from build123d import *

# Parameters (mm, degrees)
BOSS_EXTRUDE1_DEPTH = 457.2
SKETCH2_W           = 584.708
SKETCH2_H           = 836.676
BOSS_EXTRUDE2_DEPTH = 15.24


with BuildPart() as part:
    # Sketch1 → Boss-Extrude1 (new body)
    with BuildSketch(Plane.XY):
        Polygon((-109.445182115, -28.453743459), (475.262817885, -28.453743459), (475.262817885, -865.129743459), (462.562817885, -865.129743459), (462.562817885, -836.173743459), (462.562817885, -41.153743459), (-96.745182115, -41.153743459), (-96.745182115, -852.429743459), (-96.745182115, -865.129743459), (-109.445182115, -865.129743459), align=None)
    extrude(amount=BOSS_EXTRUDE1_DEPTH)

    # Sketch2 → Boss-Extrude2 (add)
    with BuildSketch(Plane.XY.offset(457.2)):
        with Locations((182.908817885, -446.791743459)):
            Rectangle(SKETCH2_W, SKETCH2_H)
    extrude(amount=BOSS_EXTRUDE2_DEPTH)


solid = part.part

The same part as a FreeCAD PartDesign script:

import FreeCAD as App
import Part
import Sketcher
Q = App.Units.Quantity

doc = App.newDocument("Part")
body = doc.addObject("PartDesign::Body", "Body")

# Sketch on XY plane
sketch1 = doc.addObject("Sketcher::SketchObject", "Sketch")
body.addObject(sketch1)
sketch1.AttachmentSupport = (doc.XY_Plane, [""])
sketch1.MapMode = "FlatFace"
sketch1.addGeometry([
    Part.LineSegment(App.Vector(475, -28, 0), App.Vector(-109, -28, 0)),  # 0
    Part.LineSegment(App.Vector(-109, -28, 0), App.Vector(-109, -865, 0)),  # 1
    Part.LineSegment(App.Vector(-109, -865, 0), App.Vector(-97, -865, 0)),  # 2
    Part.LineSegment(App.Vector(-97, -865, 0), App.Vector(-97, -41, 0)),  # 3
    Part.LineSegment(App.Vector(-97, -41, 0), App.Vector(463, -41, 0)),  # 4
    Part.LineSegment(App.Vector(463, -41, 0), App.Vector(463, -865, 0)),  # 5
    Part.LineSegment(App.Vector(463, -865, 0), App.Vector(475, -865, 0)),  # 6
    Part.LineSegment(App.Vector(475, -865, 0), App.Vector(475, -28, 0)),  # 7
], False)
sketch1.addConstraint([
    Sketcher.Constraint("Coincident", 0, 2, 1, 1),
    Sketcher.Constraint("Coincident", 1, 2, 2, 1),
    Sketcher.Constraint("Coincident", 2, 2, 3, 1),
    Sketcher.Constraint("Coincident", 3, 2, 4, 1),
    Sketcher.Constraint("Coincident", 4, 2, 5, 1),
    Sketcher.Constraint("Coincident", 5, 2, 6, 1),
    Sketcher.Constraint("Coincident", 6, 2, 7, 1),
    Sketcher.Constraint("Coincident", 7, 2, 0, 1),
    Sketcher.Constraint("Horizontal", 0),
    Sketcher.Constraint("Vertical", 1),
    Sketcher.Constraint("Horizontal", 2),
    Sketcher.Constraint("Vertical", 3),
    Sketcher.Constraint("Horizontal", 4),
    Sketcher.Constraint("Vertical", 5),
    Sketcher.Constraint("Horizontal", 6),
    Sketcher.Constraint("Vertical", 7),
    Sketcher.Constraint("Horizontal", 2, 2, 5, 2),
    Sketcher.Constraint("Equal", 2, 6),
    Sketcher.Constraint("DistanceX", 2, 1, 2, 2, Q("0.5 in")),
    Sketcher.Constraint("DistanceX", 0, 2, 0, 1, Q("23.02 in")),
    Sketcher.Constraint("DistanceY", 1, 2, 1, 1, Q("32.94 in")),
    Sketcher.Constraint("DistanceY", 3, 1, 3, 2, Q("32.44 in")),
    Sketcher.Constraint("DistanceX", 0, 2, -1, 1, 109.445182),
    Sketcher.Constraint("DistanceY", 0, 2, -1, 1, 28.453743),
])
pad1 = doc.addObject("PartDesign::Pad", "Pad")
body.addObject(pad1)
pad1.Profile = sketch1
pad1.Length = Q("18 in")

# Sketch on XY plane
sketch2 = doc.addObject("Sketcher::SketchObject", "Sketch001")
body.addObject(sketch2)
sketch2.AttachmentSupport = (doc.XY_Plane, [""])
sketch2.MapMode = "FlatFace"
sketch2.AttachmentOffset = App.Placement(App.Vector(0, 0, 18 * 25.4), App.Rotation())
sketch2.addGeometry([
    Part.LineSegment(App.Vector(-109, -28, 0), App.Vector(-109, -865, 0)),
    Part.LineSegment(App.Vector(-109, -865, 0), App.Vector(475, -865, 0)),
    Part.LineSegment(App.Vector(475, -865, 0), App.Vector(475, -28, 0)),
    Part.LineSegment(App.Vector(475, -28, 0), App.Vector(-109, -28, 0)),
], False)
sketch2.addConstraint([
    Sketcher.Constraint("Coincident", 0, 2, 1, 1),
    Sketcher.Constraint("Coincident", 1, 2, 2, 1),
    Sketcher.Constraint("Coincident", 2, 2, 3, 1),
    Sketcher.Constraint("Coincident", 3, 2, 0, 1),
    Sketcher.Constraint("Vertical", 0),
    Sketcher.Constraint("Horizontal", 1),
    Sketcher.Constraint("Vertical", 2),
    Sketcher.Constraint("Horizontal", 3),
    Sketcher.Constraint("DistanceX", 1, 1, 1, 2, Q("23.02 in")),
    Sketcher.Constraint("DistanceY", 0, 2, 0, 1, Q("32.94 in")),
    Sketcher.Constraint("DistanceX", 0, 2, -1, 1, 109.445182),
    Sketcher.Constraint("DistanceY", 0, 2, -1, 1, 865.129743),
])
pad2 = doc.addObject("PartDesign::Pad", "Pad001")
body.addObject(pad2)
pad2.Profile = sketch2
pad2.Length = Q("0.6 in")

doc.recompute()
